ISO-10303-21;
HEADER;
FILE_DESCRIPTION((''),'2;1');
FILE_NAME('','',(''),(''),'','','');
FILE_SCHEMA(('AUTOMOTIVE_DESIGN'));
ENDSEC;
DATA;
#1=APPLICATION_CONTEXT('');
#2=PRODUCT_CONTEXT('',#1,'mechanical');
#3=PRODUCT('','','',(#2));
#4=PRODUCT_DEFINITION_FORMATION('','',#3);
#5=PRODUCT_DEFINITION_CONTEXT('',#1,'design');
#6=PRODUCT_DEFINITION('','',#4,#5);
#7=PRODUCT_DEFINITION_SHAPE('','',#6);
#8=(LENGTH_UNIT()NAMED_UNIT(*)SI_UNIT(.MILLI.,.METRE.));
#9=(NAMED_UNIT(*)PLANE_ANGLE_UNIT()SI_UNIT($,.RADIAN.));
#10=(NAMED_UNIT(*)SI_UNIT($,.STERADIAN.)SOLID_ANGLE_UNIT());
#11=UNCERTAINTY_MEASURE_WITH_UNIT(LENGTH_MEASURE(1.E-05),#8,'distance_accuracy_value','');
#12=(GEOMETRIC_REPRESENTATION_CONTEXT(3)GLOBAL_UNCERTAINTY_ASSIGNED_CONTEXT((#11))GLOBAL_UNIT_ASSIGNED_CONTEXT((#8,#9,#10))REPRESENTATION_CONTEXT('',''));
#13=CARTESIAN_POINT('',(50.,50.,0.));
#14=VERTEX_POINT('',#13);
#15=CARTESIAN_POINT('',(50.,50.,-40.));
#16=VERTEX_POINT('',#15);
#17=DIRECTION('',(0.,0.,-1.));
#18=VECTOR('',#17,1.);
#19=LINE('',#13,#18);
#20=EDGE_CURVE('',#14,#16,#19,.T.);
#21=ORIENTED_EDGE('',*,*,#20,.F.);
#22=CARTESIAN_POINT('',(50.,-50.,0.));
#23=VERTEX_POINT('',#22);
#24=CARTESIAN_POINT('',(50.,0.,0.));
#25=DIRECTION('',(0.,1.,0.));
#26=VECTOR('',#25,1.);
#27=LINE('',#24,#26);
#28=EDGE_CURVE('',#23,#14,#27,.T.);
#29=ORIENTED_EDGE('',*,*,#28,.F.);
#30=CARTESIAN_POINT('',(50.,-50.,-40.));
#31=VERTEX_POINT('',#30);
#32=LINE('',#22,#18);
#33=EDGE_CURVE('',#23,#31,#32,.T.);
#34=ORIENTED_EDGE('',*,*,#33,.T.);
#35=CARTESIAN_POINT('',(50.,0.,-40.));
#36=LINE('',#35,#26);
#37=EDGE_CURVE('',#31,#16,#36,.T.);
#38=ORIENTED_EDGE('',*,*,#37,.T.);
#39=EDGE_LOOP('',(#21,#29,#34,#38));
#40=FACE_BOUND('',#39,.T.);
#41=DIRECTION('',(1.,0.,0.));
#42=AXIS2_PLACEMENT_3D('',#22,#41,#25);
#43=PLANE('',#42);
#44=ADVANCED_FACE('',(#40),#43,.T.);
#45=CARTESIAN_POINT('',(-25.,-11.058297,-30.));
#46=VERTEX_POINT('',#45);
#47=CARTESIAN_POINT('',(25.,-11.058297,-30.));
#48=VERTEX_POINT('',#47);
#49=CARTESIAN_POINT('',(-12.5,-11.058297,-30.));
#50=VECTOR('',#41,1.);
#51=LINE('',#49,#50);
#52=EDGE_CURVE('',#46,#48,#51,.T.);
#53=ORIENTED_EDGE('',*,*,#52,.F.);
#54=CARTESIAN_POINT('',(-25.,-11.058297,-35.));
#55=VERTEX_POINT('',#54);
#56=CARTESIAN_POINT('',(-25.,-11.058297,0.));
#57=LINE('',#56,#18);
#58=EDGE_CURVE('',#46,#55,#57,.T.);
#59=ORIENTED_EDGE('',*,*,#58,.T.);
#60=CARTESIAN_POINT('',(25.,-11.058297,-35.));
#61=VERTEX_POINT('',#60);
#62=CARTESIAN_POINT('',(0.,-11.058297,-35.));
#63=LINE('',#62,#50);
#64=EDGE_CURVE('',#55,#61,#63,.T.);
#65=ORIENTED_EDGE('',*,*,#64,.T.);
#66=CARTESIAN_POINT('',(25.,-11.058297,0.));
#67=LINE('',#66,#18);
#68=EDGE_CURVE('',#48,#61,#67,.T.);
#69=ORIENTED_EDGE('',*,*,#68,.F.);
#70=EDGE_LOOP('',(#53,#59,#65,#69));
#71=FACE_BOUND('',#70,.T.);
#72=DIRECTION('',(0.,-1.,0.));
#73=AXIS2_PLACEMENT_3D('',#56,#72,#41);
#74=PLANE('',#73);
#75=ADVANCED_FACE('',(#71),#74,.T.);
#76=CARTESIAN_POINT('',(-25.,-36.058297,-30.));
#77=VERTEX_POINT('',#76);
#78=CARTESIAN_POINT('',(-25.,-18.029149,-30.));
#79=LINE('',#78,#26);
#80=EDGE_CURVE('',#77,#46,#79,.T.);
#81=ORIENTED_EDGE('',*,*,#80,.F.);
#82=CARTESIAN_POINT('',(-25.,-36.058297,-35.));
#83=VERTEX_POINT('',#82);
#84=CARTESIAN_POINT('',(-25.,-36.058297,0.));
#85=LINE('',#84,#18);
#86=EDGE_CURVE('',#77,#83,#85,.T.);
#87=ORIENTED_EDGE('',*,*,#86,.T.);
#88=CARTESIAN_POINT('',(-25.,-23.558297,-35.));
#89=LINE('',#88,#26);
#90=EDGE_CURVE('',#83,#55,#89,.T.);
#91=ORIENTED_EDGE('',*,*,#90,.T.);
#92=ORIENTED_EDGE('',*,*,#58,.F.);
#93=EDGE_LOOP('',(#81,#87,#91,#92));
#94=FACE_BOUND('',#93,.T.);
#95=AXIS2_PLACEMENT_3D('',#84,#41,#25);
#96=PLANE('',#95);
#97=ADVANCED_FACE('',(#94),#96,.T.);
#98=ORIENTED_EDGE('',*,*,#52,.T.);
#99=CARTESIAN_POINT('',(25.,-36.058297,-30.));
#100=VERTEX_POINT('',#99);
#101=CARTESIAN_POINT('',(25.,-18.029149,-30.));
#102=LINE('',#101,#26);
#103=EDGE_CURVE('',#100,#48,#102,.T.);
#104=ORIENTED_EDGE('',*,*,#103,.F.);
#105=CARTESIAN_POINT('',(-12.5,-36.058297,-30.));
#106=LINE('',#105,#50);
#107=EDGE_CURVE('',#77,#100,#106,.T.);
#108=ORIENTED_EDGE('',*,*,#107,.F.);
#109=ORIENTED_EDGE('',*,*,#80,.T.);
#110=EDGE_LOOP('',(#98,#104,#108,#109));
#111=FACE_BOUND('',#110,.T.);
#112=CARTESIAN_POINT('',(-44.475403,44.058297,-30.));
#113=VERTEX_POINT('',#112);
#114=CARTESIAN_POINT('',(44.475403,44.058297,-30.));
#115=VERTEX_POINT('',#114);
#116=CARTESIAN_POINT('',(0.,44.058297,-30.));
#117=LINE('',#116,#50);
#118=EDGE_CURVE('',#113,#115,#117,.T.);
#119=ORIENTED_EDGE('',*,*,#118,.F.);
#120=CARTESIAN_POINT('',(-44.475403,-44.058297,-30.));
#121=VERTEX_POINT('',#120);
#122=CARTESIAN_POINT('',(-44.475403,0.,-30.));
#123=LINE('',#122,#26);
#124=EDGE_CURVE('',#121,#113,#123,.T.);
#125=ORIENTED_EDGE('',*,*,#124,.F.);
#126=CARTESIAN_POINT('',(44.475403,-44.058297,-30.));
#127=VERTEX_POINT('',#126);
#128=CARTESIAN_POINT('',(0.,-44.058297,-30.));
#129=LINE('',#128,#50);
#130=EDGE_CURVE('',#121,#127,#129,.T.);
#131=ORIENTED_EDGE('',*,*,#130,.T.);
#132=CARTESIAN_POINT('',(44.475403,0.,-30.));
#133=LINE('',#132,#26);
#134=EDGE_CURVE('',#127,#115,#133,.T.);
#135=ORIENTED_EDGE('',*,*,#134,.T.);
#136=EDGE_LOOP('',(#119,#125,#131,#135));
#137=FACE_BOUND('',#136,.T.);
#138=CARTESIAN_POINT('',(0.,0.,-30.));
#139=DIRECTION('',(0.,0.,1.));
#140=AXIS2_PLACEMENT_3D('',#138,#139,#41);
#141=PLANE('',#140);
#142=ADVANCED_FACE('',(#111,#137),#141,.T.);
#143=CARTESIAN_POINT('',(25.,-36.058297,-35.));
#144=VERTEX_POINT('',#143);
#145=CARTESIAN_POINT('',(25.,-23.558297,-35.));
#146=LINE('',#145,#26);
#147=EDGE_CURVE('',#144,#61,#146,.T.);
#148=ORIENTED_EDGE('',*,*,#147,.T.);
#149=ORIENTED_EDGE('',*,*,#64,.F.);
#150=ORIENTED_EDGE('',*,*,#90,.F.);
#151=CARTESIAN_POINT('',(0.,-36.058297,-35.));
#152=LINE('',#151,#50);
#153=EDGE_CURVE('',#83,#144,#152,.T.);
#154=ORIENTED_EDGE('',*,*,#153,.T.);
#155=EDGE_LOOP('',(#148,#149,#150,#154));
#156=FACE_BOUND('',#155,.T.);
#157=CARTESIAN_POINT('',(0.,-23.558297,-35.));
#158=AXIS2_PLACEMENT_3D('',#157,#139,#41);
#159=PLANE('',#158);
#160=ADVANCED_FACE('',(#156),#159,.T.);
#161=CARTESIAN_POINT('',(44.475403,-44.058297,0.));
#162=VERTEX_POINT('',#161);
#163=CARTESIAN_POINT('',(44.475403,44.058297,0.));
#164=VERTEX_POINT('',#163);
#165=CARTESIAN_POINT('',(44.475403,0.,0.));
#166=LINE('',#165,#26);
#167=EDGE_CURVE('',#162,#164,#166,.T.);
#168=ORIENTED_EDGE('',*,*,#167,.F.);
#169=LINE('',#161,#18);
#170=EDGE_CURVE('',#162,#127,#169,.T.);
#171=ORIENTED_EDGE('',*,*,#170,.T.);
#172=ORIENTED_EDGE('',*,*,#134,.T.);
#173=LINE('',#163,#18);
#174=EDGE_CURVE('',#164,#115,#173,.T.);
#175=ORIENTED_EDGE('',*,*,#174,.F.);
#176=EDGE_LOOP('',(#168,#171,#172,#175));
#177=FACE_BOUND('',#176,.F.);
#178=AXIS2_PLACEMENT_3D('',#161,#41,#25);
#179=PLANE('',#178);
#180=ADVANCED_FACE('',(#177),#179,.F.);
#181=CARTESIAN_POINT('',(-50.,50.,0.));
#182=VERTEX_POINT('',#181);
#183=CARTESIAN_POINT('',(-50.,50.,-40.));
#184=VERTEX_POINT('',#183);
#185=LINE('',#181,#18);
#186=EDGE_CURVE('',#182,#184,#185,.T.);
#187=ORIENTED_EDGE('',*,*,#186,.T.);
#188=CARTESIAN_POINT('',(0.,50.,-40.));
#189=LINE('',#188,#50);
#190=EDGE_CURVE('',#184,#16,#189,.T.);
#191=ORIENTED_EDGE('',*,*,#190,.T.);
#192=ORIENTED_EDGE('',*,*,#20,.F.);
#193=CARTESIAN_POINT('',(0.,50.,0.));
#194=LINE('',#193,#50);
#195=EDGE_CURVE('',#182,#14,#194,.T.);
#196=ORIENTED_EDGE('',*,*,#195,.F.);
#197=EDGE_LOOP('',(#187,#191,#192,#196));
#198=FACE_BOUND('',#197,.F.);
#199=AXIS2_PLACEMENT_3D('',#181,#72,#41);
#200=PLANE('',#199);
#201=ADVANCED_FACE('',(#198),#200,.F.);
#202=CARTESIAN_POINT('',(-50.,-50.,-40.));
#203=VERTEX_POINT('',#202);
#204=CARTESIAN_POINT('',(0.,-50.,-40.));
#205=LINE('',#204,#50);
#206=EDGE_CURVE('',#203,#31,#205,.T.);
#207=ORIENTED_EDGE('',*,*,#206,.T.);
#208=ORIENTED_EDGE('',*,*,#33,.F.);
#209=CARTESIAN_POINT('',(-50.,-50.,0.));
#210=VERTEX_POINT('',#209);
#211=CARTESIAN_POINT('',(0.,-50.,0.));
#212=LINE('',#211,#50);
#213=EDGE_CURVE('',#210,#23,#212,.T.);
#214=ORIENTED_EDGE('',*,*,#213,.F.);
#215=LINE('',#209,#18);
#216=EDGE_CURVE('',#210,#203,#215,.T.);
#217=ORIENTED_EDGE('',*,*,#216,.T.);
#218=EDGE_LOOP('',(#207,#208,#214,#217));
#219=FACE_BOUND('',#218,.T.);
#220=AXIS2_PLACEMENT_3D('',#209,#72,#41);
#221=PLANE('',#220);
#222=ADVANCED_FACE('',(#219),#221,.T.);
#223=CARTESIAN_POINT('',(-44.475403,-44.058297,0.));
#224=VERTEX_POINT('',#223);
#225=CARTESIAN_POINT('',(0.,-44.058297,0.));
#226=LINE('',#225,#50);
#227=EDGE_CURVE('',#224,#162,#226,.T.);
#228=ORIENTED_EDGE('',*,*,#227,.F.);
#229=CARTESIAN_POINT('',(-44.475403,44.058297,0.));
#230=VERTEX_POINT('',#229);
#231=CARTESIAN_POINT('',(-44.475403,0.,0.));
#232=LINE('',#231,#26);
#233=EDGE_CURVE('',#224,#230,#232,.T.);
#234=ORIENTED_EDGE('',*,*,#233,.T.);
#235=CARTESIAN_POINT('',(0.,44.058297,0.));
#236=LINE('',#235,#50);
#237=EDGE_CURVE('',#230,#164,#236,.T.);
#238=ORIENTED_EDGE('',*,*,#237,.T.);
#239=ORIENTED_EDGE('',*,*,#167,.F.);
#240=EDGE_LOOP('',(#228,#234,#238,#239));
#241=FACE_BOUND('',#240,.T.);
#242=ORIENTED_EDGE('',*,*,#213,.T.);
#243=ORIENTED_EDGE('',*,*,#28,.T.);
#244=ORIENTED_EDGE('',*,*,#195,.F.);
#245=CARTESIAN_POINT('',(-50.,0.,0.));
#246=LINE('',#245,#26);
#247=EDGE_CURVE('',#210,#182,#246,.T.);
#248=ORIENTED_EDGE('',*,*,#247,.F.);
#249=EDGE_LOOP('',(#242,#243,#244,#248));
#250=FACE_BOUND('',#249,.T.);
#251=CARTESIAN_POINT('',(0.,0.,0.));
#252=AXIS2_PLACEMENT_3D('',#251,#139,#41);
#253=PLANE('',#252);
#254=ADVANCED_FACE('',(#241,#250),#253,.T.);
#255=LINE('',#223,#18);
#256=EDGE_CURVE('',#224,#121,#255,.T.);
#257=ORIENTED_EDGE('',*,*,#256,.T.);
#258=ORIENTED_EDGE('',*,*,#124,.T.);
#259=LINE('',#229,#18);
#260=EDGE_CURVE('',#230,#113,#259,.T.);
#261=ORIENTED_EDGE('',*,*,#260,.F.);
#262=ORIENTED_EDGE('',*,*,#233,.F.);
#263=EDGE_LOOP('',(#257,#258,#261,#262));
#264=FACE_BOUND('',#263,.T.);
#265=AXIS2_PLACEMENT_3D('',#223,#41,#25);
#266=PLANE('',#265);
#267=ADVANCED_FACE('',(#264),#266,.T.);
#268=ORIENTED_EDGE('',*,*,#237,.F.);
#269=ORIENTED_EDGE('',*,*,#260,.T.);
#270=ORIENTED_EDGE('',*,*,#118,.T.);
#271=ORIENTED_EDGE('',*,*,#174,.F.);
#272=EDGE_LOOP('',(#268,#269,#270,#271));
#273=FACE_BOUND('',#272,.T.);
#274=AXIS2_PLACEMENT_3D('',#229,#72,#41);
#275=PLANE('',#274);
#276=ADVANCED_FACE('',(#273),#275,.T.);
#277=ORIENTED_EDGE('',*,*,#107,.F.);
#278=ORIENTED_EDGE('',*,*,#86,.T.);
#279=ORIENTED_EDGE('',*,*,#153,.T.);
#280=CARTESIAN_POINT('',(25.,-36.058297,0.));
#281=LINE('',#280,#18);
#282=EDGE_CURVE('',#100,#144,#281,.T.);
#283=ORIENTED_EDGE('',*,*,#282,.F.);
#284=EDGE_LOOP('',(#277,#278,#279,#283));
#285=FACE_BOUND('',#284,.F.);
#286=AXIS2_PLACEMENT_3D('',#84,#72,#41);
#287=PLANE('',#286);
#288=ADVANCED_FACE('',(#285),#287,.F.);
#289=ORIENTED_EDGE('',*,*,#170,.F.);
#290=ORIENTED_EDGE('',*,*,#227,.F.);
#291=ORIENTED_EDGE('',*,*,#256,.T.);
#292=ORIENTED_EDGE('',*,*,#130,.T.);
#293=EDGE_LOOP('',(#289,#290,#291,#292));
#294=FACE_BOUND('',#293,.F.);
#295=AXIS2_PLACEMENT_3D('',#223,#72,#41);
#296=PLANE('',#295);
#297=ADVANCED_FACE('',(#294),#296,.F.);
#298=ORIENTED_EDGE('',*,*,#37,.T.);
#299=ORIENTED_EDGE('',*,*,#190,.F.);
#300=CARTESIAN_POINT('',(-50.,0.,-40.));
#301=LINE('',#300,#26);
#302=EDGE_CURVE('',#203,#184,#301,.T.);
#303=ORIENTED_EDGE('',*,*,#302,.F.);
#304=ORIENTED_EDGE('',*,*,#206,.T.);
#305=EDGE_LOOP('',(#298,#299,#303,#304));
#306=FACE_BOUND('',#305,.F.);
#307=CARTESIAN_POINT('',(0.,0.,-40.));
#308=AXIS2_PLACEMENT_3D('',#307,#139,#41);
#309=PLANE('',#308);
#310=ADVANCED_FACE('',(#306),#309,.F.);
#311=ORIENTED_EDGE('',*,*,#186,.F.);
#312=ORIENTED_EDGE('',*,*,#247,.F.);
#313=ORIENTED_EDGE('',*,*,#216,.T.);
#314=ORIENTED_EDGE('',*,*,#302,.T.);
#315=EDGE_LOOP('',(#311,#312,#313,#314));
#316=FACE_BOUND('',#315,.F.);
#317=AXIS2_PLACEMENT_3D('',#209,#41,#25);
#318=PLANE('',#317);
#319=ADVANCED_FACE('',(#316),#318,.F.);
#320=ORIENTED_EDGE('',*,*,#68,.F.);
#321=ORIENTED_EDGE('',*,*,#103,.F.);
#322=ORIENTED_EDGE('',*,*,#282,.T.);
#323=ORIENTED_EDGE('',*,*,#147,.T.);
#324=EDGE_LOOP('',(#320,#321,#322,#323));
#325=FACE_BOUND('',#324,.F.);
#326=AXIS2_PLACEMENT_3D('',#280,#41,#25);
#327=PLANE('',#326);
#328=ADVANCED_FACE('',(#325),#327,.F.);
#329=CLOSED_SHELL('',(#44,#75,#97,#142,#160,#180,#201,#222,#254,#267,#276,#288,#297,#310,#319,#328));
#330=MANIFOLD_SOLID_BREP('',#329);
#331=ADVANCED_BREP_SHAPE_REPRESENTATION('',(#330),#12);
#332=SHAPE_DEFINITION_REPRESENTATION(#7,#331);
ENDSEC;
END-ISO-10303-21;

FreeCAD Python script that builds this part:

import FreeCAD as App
import Part
import Sketcher


def add_polygon(sketch, points):
    """Adds a closed chain of lines whose ends are joined by coincident constraints."""
    first, n = sketch.GeometryCount, len(points)
    for a, b in zip(points, points[1:] + points[:1]):
        sketch.addGeometry(Part.LineSegment(App.Vector(*a, 0), App.Vector(*b, 0)), False)
    for i in range(n):
        sketch.addConstraint(Sketcher.Constraint("Coincident", first + i, 2, first + (i + 1) % n, 1))

doc = App.newDocument("Part")
body = doc.addObject("PartDesign::Body", "Body")

sketch1 = body.newObject("Sketcher::SketchObject", "Sketch")
sketch1.AttachmentSupport = (doc.getObject("XY_Plane"), [""])
sketch1.MapMode = "FlatFace"
add_polygon(sketch1, [(-50, 50), (-50, -50), (50, -50), (50, 50)])
sketch1.addConstraint([
    Sketcher.Constraint("Vertical", 0),
    Sketcher.Constraint("Horizontal", 1),
    Sketcher.Constraint("Vertical", 2),
    Sketcher.Constraint("Horizontal", 3),
    Sketcher.Constraint("Symmetric", 0, 2, 2, 2, -1, 1),
    Sketcher.Constraint("Equal", 3, 0),
    Sketcher.Constraint("DistanceX", 1, 1, 1, 2, 100.0),
])
pad1 = body.newObject("PartDesign::Pad", "Pad")
pad1.Profile = sketch1
pad1.Length = 40
pad1.Reversed = True

sketch2 = body.newObject("Sketcher::SketchObject", "Sketch001")
sketch2.AttachmentSupport = (doc.getObject("XY_Plane"), [""])
sketch2.MapMode = "FlatFace"
add_polygon(sketch2, [(-44, 44), (-44, -44), (44, -44), (44, 44)])
sketch2.addConstraint([
    Sketcher.Constraint("Vertical", 0),
    Sketcher.Constraint("Horizontal", 1),
    Sketcher.Constraint("Vertical", 2),
    Sketcher.Constraint("Horizontal", 3),
    Sketcher.Constraint("Symmetric", 0, 2, 2, 2, -1, 1),
    Sketcher.Constraint("DistanceX", 1, 1, 1, 2, 88.950806),
    Sketcher.Constraint("DistanceY", 0, 2, 0, 1, 88.116594),
])
pocket1 = body.newObject("PartDesign::Pocket", "Pocket")
pocket1.Profile = sketch2
pocket1.Length = 30

sketch3 = body.newObject("Sketcher::SketchObject", "Sketch002")
sketch3.AttachmentSupport = (doc.getObject("XY_Plane"), [""])
sketch3.MapMode = "FlatFace"
add_polygon(sketch3, [(-25, -11), (-25, -36), (25, -36), (25, -11)])
sketch3.addConstraint([
    Sketcher.Constraint("Vertical", 0),
    Sketcher.Constraint("Horizontal", 1),
    Sketcher.Constraint("Vertical", 2),
    Sketcher.Constraint("Horizontal", 3),
    Sketcher.Constraint("DistanceX", 1, 1, 1, 2, 50.0),
    Sketcher.Constraint("DistanceY", 0, 2, 0, 1, 25.0),
    Sketcher.Constraint("DistanceX", 0, 2, -1, 1, 25.0),
    Sketcher.Constraint("DistanceY", 0, 2, -1, 1, 36.058297),
])
pocket2 = body.newObject("PartDesign::Pocket", "Pocket001")
pocket2.Profile = sketch3
pocket2.Length = 35

doc.recompute()
